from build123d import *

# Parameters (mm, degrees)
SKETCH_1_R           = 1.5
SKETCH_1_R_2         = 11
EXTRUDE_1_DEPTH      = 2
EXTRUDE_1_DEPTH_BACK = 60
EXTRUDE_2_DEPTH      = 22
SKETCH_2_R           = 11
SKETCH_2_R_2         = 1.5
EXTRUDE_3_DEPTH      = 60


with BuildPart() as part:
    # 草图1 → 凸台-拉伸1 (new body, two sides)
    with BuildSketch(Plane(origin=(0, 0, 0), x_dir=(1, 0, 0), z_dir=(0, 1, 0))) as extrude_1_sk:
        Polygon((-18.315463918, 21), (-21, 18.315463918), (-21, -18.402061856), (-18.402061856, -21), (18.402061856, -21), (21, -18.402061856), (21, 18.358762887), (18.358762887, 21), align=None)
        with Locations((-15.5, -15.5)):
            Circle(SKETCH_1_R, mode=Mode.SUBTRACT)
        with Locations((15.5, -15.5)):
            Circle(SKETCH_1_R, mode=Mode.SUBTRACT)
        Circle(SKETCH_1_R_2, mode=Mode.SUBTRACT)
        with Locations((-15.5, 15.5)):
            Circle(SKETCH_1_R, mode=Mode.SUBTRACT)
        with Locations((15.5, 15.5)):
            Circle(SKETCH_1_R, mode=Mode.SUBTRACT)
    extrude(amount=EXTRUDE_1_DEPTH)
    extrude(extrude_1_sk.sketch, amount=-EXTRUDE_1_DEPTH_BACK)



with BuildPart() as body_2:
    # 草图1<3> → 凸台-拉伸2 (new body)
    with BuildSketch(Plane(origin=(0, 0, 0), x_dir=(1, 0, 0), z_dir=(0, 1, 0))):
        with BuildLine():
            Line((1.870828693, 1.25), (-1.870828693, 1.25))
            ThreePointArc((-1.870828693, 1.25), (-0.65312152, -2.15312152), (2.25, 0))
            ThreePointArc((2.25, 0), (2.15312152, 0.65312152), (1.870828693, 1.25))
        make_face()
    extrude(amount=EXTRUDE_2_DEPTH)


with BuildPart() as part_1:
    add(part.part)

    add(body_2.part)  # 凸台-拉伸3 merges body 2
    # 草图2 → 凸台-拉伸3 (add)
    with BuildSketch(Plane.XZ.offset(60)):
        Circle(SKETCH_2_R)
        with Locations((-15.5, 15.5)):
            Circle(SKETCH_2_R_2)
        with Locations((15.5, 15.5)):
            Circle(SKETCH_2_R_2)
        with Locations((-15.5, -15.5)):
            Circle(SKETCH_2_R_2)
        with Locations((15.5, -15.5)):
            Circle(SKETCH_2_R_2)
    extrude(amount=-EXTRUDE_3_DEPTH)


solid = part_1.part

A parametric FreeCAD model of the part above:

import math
import FreeCAD as App
import Part
import Sketcher


def add_polygon(sketch, points):
    """Adds a closed chain of lines whose ends are joined by coincident constraints."""
    first, n = sketch.GeometryCount, len(points)
    for a, b in zip(points, points[1:] + points[:1]):
        sketch.addGeometry(Part.LineSegment(App.Vector(*a, 0), App.Vector(*b, 0)), False)
    for i in range(n):
        sketch.addConstraint(Sketcher.Constraint("Coincident", first + i, 2, first + (i + 1) % n, 1))

doc = App.newDocument("Part")
body = doc.addObject("PartDesign::Body", "Body")

# Sketch on XZ plane
sketch1 = body.newObject("Sketcher::SketchObject", "Sketch")
sketch1.AttachmentSupport = (doc.getObject("XZ_Plane"), [""])
sketch1.MapMode = "FlatFace"
add_polygon(sketch1, [(-18.315464, -21), (-21, -18.315464), (-21, 18.402062), (-18.402062, 21), (18.402062, 21), (21, 18.402062), (21, -18.358763), (18.358763, -21)])  # lines 0-7
sketch1.addGeometry(Part.Circle(App.Vector(-15.5, 15.5, 0), App.Vector(0, 0, 1), 1.5), False)  # 8
sketch1.addGeometry(Part.Circle(App.Vector(15.5, 15.5, 0), App.Vector(0, 0, 1), 1.5), False)  # 9
sketch1.addGeometry(Part.Circle(App.Vector(-15.5, -15.5, 0), App.Vector(0, 0, 1), 1.5), False)  # 10
sketch1.addGeometry(Part.Circle(App.Vector(0, 0, 0), App.Vector(0, 0, 1), 11), False)  # 11
sketch1.addGeometry(Part.Circle(App.Vector(15.5, -15.5, 0), App.Vector(0, 0, 1), 1.5), False)  # 12
sketch1.addConstraint(Sketcher.Constraint("Vertical", 1))
sketch1.addConstraint(Sketcher.Constraint("Horizontal", 3))
sketch1.addConstraint(Sketcher.Constraint("Vertical", 5))
sketch1.addConstraint(Sketcher.Constraint("Horizontal", 7))
sketch1.addConstraint(Sketcher.Constraint("Coincident", 11, 3, -1, 1))
sketch1.addConstraint(Sketcher.Constraint("Equal", 8, 9))
sketch1.addConstraint(Sketcher.Constraint("Equal", 9, 10))
sketch1.addConstraint(Sketcher.Constraint("Equal", 10, 12))
sketch1.addConstraint(Sketcher.Constraint("Symmetric", 9, 3, 10, 3, -1, 1))
sketch1.addConstraint(Sketcher.Constraint("Symmetric", 8, 3, 12, 3, -1, 1))
sketch1.addConstraint(Sketcher.Constraint("Symmetric", 8, 3, 9, 3, -2))
sketch1.addConstraint(Sketcher.Constraint("Symmetric", 1, 2, 4, 2, -2))
sketch1.addConstraint(Sketcher.Constraint("Perpendicular", 0, 2))
sketch1.addConstraint(Sketcher.Constraint("Perpendicular", 2, 4))
sketch1.addConstraint(Sketcher.Constraint("Perpendicular", 4, 6))
sketch1.addConstraint(Sketcher.Constraint("Equal", 2, 4))
sketch1.addConstraint(Sketcher.Constraint("Diameter", 8, 3.0))
sketch1.addConstraint(Sketcher.Constraint("Diameter", 11, 22.0))
sketch1.addConstraint(Sketcher.Constraint("DistanceX", 0, 2, -1, 1, 21.0))
sketch1.addConstraint(Sketcher.Constraint("DistanceY", -1, 1, 2, 2, 21.0))
sketch1.addConstraint(Sketcher.Constraint("DistanceY", 6, 2, -1, 1, 21.0))
sketch1.addConstraint(Sketcher.Constraint("DistanceX", 8, 3, 9, 3, 31.0))
sketch1.addConstraint(Sketcher.Constraint("DistanceY", 10, 3, 8, 3, 31.0))
sketch1.addConstraint(Sketcher.Constraint("Distance", 2, 3.674039))
sketch1.addConstraint(Sketcher.Constraint("DistanceX", 7, 2, 7, 1, 36.674227))
sketch1.addConstraint(Sketcher.Constraint("DistanceY", 1, 1, 1, 2, 36.717526))
pad1 = body.newObject("PartDesign::Pad", "Pad")
pad1.Profile = sketch1
pad1.Type = "TwoLengths"
pad1.Length = 2
pad1.Length2 = 60
pad1.Reversed = True
body2 = doc.addObject("PartDesign::Body", "Body001")

# Sketch on XZ plane
sketch2 = body2.newObject("Sketcher::SketchObject", "Sketch001")
sketch2.AttachmentSupport = (doc.getObject("XZ_Plane001"), [""])
sketch2.MapMode = "FlatFace"
sketch2.addGeometry(Part.LineSegment(App.Vector(1.870829, -1.25, 0), App.Vector(-1.870829, -1.25, 0)), False)
sketch2.addGeometry(Part.ArcOfCircle(Part.Circle(App.Vector(0, 0, 0), App.Vector(0, 0, 1), 2.25), math.radians(0), math.radians(213.748989)), False)
sketch2.addGeometry(Part.ArcOfCircle(Part.Circle(App.Vector(0, 0, 0), App.Vector(0, 0, 1), 2.25), math.radians(-33.748989), math.radians(0)), False)
sketch2.addConstraint(Sketcher.Constraint("Coincident", 0, 2, 1, 2))
sketch2.addConstraint(Sketcher.Constraint("Tangent", 1, 1, 2, 2))
sketch2.addConstraint(Sketcher.Constraint("Coincident", 2, 1, 0, 1))
sketch2.addConstraint(Sketcher.Constraint("Horizontal", 0))
sketch2.addConstraint(Sketcher.Constraint("Coincident", 1, 3, -1, 1))
sketch2.addConstraint(Sketcher.Constraint("Equal", 1, 2))
sketch2.addConstraint(Sketcher.Constraint("PointOnObject", 1, 1, -1))
sketch2.addConstraint(Sketcher.Constraint("Radius", 1, 2.25))
sketch2.addConstraint(Sketcher.Constraint("DistanceY", 0, 2, -1, 1, 1.25))
pad2 = body2.newObject("PartDesign::Pad", "Pad001")
pad2.Profile = sketch2
pad2.Length = 22
pad2.Reversed = True
body.AllowCompound = True
doc.recompute()

boolean = body.newObject("PartDesign::Boolean", "Boolean")
boolean.Type = "Fuse"
boolean.addObjects([body2])

# Sketch on XZ plane
sketch3 = body.newObject("Sketcher::SketchObject", "Sketch002")
sketch3.AttachmentSupport = (doc.getObject("XZ_Plane"), [""])
sketch3.MapMode = "FlatFace"
sketch3.AttachmentOffset = App.Placement(App.Vector(0, 0, 60), App.Rotation())
sketch3.addGeometry(Part.Circle(App.Vector(0, 0, 0), App.Vector(0, 0, 1), 11), False)
sketch3.addGeometry(Part.Circle(App.Vector(-15.5, 15.5, 0), App.Vector(0, 0, 1), 1.5), False)
sketch3.addGeometry(Part.Circle(App.Vector(15.5, 15.5, 0), App.Vector(0, 0, 1), 1.5), False)
sketch3.addGeometry(Part.Circle(App.Vector(-15.5, -15.5, 0), App.Vector(0, 0, 1), 1.5), False)
sketch3.addGeometry(Part.Circle(App.Vector(15.5, -15.5, 0), App.Vector(0, 0, 1), 1.5), False)
sketch3.addConstraint(Sketcher.Constraint("Coincident", 0, 3, -1, 1))
sketch3.addConstraint(Sketcher.Constraint("Equal", 1, 2))
sketch3.addConstraint(Sketcher.Constraint("Equal", 2, 3))
sketch3.addConstraint(Sketcher.Constraint("Equal", 3, 4))
sketch3.addConstraint(Sketcher.Constraint("Symmetric", 2, 3, 3, 3, -1, 1))
sketch3.addConstraint(Sketcher.Constraint("Symmetric", 1, 3, 4, 3, -1, 1))
sketch3.addConstraint(Sketcher.Constraint("Symmetric", 1, 3, 2, 3, -2))
sketch3.addConstraint(Sketcher.Constraint("Diameter", 0, 22.0))
sketch3.addConstraint(Sketcher.Constraint("Diameter", 1, 3.0))
sketch3.addConstraint(Sketcher.Constraint("DistanceX", 1, 3, 2, 3, 31.0))
sketch3.addConstraint(Sketcher.Constraint("DistanceY", 3, 3, 1, 3, 31.0))
pad3 = body.newObject("PartDesign::Pad", "Pad002")
pad3.Profile = sketch3
pad3.Length = 60
pad3.Reversed = True

doc.recompute()
